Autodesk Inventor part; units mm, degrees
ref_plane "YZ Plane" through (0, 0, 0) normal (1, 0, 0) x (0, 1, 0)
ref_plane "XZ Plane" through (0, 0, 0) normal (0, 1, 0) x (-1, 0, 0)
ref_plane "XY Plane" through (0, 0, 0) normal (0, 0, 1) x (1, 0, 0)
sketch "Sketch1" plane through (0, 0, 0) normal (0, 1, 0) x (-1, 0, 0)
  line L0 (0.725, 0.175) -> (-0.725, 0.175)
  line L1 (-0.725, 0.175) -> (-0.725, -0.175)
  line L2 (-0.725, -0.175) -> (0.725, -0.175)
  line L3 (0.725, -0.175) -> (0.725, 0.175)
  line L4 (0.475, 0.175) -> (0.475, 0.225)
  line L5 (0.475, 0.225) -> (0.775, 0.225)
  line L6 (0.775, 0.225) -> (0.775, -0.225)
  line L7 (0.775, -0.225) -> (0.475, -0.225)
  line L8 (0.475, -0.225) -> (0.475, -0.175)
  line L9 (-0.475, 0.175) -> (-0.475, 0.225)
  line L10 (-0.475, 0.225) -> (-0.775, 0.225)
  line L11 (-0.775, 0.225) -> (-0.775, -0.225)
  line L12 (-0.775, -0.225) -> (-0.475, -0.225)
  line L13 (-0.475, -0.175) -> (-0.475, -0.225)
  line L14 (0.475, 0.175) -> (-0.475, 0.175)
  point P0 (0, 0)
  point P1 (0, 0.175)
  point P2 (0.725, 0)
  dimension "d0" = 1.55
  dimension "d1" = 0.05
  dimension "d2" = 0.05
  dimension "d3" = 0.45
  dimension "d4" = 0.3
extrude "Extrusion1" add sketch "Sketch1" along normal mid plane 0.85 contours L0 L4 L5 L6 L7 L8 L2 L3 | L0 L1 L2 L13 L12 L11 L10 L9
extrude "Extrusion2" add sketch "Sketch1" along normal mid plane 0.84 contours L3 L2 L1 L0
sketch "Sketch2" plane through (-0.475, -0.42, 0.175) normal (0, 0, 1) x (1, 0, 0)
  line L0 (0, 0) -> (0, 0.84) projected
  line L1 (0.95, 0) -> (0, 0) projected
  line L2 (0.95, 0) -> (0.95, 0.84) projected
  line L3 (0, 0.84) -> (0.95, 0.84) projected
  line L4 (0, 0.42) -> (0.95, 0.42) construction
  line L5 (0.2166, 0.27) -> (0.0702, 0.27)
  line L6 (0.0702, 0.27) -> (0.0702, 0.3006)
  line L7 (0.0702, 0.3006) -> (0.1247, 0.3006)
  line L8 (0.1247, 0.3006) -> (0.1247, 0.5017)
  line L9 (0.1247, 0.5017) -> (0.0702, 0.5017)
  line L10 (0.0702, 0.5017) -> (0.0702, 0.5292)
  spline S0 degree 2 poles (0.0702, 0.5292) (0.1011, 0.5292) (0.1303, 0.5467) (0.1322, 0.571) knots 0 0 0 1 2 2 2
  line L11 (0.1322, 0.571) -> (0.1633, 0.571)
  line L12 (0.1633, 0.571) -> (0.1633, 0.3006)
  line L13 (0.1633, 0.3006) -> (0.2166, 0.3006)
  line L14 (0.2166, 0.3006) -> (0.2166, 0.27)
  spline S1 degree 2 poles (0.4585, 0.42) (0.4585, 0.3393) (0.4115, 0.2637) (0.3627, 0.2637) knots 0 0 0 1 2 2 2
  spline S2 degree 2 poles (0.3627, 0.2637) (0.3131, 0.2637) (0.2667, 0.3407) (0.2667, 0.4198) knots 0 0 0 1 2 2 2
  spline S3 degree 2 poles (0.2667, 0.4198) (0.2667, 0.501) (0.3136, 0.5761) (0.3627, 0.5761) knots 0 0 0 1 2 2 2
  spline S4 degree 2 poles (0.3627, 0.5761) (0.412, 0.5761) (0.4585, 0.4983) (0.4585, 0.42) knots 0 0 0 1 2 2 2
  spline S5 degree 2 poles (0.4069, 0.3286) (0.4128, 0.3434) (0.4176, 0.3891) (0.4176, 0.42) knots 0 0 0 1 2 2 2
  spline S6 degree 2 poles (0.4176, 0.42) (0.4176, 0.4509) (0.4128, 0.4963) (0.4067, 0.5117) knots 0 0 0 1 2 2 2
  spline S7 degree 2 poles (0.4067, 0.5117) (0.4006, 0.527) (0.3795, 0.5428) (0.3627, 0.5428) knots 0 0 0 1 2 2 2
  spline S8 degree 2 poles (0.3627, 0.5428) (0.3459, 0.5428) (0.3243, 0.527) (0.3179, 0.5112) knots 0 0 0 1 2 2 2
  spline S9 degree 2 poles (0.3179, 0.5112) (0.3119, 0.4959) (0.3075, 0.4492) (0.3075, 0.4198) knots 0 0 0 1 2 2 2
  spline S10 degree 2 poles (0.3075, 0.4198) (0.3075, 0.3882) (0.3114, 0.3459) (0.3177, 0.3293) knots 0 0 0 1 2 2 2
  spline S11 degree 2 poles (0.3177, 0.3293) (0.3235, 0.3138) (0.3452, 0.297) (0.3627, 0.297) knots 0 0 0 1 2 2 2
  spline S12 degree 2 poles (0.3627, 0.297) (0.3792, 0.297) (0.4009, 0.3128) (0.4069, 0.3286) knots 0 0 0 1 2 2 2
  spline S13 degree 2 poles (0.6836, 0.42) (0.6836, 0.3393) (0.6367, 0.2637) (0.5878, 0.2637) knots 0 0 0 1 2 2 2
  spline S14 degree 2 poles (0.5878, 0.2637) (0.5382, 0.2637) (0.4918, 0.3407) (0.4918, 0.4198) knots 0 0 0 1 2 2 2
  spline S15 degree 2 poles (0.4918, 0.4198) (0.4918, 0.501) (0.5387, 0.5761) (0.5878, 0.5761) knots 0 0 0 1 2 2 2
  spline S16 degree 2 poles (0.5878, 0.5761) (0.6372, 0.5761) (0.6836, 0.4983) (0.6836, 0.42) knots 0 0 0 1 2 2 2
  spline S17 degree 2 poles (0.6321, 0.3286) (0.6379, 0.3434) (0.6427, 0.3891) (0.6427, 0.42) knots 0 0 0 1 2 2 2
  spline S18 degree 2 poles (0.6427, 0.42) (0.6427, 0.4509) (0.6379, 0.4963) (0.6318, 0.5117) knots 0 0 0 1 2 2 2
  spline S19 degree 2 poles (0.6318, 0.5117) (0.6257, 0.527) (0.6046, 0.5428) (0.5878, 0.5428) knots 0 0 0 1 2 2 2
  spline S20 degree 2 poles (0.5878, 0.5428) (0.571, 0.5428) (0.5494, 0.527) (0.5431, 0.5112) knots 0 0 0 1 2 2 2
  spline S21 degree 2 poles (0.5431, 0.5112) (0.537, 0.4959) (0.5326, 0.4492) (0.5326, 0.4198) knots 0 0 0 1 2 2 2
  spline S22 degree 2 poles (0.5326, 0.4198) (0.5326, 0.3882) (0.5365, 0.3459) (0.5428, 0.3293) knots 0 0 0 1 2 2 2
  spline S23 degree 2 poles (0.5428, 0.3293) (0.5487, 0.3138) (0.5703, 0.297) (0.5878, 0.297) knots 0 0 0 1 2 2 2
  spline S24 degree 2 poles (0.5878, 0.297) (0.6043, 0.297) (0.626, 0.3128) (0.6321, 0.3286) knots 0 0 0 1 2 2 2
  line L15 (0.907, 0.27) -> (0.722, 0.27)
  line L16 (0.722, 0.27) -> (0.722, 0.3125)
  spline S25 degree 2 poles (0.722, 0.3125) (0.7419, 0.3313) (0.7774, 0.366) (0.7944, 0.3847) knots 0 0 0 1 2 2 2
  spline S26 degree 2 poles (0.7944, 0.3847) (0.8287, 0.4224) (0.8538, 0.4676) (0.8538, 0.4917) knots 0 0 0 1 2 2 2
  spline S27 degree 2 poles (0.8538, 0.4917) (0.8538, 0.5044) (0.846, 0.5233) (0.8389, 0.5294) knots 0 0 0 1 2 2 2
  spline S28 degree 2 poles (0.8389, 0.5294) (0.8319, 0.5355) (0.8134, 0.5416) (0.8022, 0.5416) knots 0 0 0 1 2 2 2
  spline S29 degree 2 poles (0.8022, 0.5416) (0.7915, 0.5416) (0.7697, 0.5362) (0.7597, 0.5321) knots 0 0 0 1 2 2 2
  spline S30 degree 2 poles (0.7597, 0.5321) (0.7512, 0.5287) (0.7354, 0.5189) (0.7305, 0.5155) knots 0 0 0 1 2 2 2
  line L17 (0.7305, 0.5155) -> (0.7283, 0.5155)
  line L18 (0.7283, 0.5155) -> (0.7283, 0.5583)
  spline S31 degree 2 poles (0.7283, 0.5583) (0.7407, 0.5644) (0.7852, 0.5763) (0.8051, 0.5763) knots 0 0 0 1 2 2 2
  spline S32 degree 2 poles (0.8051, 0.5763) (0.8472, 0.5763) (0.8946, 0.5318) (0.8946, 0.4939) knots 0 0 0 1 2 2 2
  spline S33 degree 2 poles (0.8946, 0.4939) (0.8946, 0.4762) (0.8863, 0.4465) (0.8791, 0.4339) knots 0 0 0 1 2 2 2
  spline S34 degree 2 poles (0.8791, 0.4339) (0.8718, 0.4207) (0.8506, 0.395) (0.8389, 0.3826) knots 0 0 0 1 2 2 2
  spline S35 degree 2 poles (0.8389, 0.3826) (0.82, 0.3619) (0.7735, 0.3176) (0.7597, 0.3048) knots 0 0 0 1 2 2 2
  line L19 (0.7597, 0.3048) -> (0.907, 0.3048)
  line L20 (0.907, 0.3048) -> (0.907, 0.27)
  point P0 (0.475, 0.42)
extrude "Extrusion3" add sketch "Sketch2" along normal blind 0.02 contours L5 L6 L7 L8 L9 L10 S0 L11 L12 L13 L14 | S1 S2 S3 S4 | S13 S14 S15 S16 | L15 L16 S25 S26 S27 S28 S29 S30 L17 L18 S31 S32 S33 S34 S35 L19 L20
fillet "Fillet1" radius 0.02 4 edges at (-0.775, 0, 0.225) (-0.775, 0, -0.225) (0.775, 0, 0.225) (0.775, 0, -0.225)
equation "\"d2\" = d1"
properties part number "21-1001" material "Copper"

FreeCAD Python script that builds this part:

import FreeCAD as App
import Part
import Sketcher
from FreeCAD import Vector
Q = App.Units.Quantity


def edges_at(feature, points):
    """Names of the edges that pass closest to the given points."""
    edges = feature.Shape.Edges
    near = lambda p: min(range(len(edges)), key=lambda i: edges[i].distToShape(Part.Vertex(*p))[0])
    return sorted({f"Edge{near(p) + 1}" for p in points})


def add_polygon(sketch, points):
    """Adds a closed chain of lines whose ends are joined by coincident constraints."""
    first, n = sketch.GeometryCount, len(points)
    for a, b in zip(points, points[1:] + points[:1]):
        sketch.addGeometry(Part.LineSegment(App.Vector(*a, 0), App.Vector(*b, 0)), False)
    for i in range(n):
        sketch.addConstraint(Sketcher.Constraint("Coincident", first + i, 2, first + (i + 1) % n, 1))

doc = App.newDocument("Part")
body = doc.addObject("PartDesign::Body", "Body")
body.AllowCompound = True

# Sketch on XZ plane
sketch1 = doc.addObject("Sketcher::SketchObject", "Sketch")
body.addObject(sketch1)
sketch1.AttachmentSupport = (doc.XZ_Plane, [""])
sketch1.MapMode = "FlatFace"
add_polygon(sketch1, [(-0.47, 0.17), (-0.72, 0.17), (-0.72, -0.17), (-0.47, -0.17), (-0.47, -0.23), (-0.78, -0.23), (-0.78, 0.23), (-0.47, 0.23)])  # lines 0-7
add_polygon(sketch1, [(0.72, 0.17), (0.47, 0.17), (0.47, 0.23), (0.78, 0.23), (0.78, -0.23), (0.47, -0.23), (0.47, -0.17), (0.72, -0.17)])  # lines 8-15
sketch1.addConstraint(Sketcher.Constraint("Horizontal", 0))
sketch1.addConstraint(Sketcher.Constraint("Vertical", 1))
sketch1.addConstraint(Sketcher.Constraint("Horizontal", 2))
sketch1.addConstraint(Sketcher.Constraint("Vertical", 3))
sketch1.addConstraint(Sketcher.Constraint("Horizontal", 4))
sketch1.addConstraint(Sketcher.Constraint("Vertical", 5))
sketch1.addConstraint(Sketcher.Constraint("Horizontal", 6))
sketch1.addConstraint(Sketcher.Constraint("Vertical", 7))
sketch1.addConstraint(Sketcher.Constraint("Horizontal", 8))
sketch1.addConstraint(Sketcher.Constraint("Vertical", 9))
sketch1.addConstraint(Sketcher.Constraint("Horizontal", 10))
sketch1.addConstraint(Sketcher.Constraint("Vertical", 11))
sketch1.addConstraint(Sketcher.Constraint("Horizontal", 12))
sketch1.addConstraint(Sketcher.Constraint("Vertical", 13))
sketch1.addConstraint(Sketcher.Constraint("Horizontal", 14))
sketch1.addConstraint(Sketcher.Constraint("Vertical", 15))
sketch1.addConstraint(Sketcher.Constraint("Symmetric", 2, 2, 8, 2, -1, 1))
sketch1.addConstraint(Sketcher.Constraint("Symmetric", 4, 2, 10, 2, -1, 1))
sketch1.addConstraint(Sketcher.Constraint("Symmetric", 6, 2, 12, 2, -1, 1))
sketch1.addConstraint(Sketcher.Constraint("Symmetric", 0, 2, 14, 2, -1, 1))
sketch1.addConstraint(Sketcher.Constraint("Symmetric", 7, 2, 8, 2, -2))
sketch1.addConstraint(Sketcher.Constraint("Horizontal", 6, 2, 9, 2))
sketch1.addConstraint(Sketcher.Constraint("DistanceX", 4, 2, 4, 1, Q("0.3 mm")))
sketch1.addConstraint(Sketcher.Constraint("DistanceY", 3, 2, 3, 1, Q("0.05 mm")))
sketch1.addConstraint(Sketcher.Constraint("DistanceY", 5, 1, 5, 2, Q("0.45 mm")))
sketch1.addConstraint(Sketcher.Constraint("DistanceX", 4, 2, 1, 2, Q("0.05 mm")))
sketch1.addConstraint(Sketcher.Constraint("DistanceX", 0, 2, 8, 2, Q("1.2 mm")))
pad1 = doc.addObject("PartDesign::Pad", "Pad")
body.addObject(pad1)
pad1.Profile = sketch1
pad1.Length = 0.85
pad1.Midplane = True

# Sketch on XZ plane
sketch2 = doc.addObject("Sketcher::SketchObject", "Sketch001")
body.addObject(sketch2)
sketch2.AttachmentSupport = (doc.XZ_Plane, [""])
sketch2.MapMode = "FlatFace"
add_polygon(sketch2, [(-0.72, -0.17), (-0.72, 0.17), (0.72, 0.17), (0.72, -0.17)])  # lines 0-3
sketch2.addConstraint(Sketcher.Constraint("Vertical", 0))
sketch2.addConstraint(Sketcher.Constraint("Horizontal", 1))
sketch2.addConstraint(Sketcher.Constraint("Vertical", 2))
sketch2.addConstraint(Sketcher.Constraint("Horizontal", 3))
sketch2.addConstraint(Sketcher.Constraint("Symmetric", 0, 2, 2, 2, -1, 1))
sketch2.addConstraint(Sketcher.Constraint("DistanceX", 1, 1, 1, 2, Q("1.45 mm")))
sketch2.addConstraint(Sketcher.Constraint("DistanceY", 0, 1, 0, 2, Q("0.35 mm")))
pad2 = doc.addObject("PartDesign::Pad", "Pad001")
body.addObject(pad2)
pad2.Profile = sketch2
pad2.Length = 0.84
pad2.Midplane = True

# Sketch on XY plane
sketch3 = doc.addObject("Sketcher::SketchObject", "Sketch002")
body.addObject(sketch3)
sketch3.AttachmentSupport = (doc.XY_Plane, [""])
sketch3.MapMode = "FlatFace"
sketch3.AttachmentOffset = App.Placement(Vector(0, 0, 0.175), App.Rotation())
sketch3.addGeometry(Part.LineSegment(Vector(-0.4048, -0.15, 0), Vector(-0.2584, -0.15, 0)), False)
sketch3.addGeometry(Part.LineSegment(Vector(-0.2584, -0.15, 0), Vector(-0.2584, -0.1194, 0)), False)
sketch3.addGeometry(Part.LineSegment(Vector(-0.2584, -0.1194, 0), Vector(-0.3117, -0.1194, 0)), False)
sketch3.addGeometry(Part.LineSegment(Vector(-0.3117, -0.1194, 0), Vector(-0.3117, 0.151, 0)), False)
sketch3.addGeometry(Part.LineSegment(Vector(-0.3117, 0.151, 0), Vector(-0.3428, 0.151, 0)), False)
sketch3.addGeometry(Part.BSplineCurve([Vector(-0.4048, 0.1092, 0), Vector(-0.3739, 0.1092, 0), Vector(-0.3447, 0.1267, 0), Vector(-0.3428, 0.151, 0)], [3, 1, 3], [0, 1, 2], False, 2, [1, 1, 1, 1], False), False)
sketch3.addGeometry(Part.LineSegment(Vector(-0.4048, 0.1092, 0), Vector(-0.4048, 0.0817, 0)), False)
sketch3.addGeometry(Part.LineSegment(Vector(-0.4048, 0.0817, 0), Vector(-0.3503, 0.0817, 0)), False)
sketch3.addGeometry(Part.LineSegment(Vector(-0.3503, 0.0817, 0), Vector(-0.3503, -0.1194, 0)), False)
sketch3.addGeometry(Part.LineSegment(Vector(-0.3503, -0.1194, 0), Vector(-0.4048, -0.1194, 0)), False)
sketch3.addGeometry(Part.LineSegment(Vector(-0.4048, -0.1194, 0), Vector(-0.4048, -0.15, 0)), False)
sketch3.addGeometry(Part.BSplineCurve([Vector(-0.0165, 0, 0), Vector(-0.0165, -0.0807, 0), Vector(-0.0635, -0.1563, 0), Vector(-0.1123, -0.1563, 0)], [3, 1, 3], [0, 1, 2], False, 2, [1, 1, 1, 1], False), False)
sketch3.addGeometry(Part.BSplineCurve([Vector(-0.1123, 0.1561, 0), Vector(-0.063, 0.1561, 0), Vector(-0.0165, 0.0783, 0), Vector(-0.0165, 0, 0)], [3, 1, 3], [0, 1, 2], False, 2, [1, 1, 1, 1], False), False)
sketch3.addGeometry(Part.BSplineCurve([Vector(-0.2083, -0.0002, 0), Vector(-0.2083, 0.081, 0), Vector(-0.1614, 0.1561, 0), Vector(-0.1123, 0.1561, 0)], [3, 1, 3], [0, 1, 2], False, 2, [1, 1, 1, 1], False), False)
sketch3.addGeometry(Part.BSplineCurve([Vector(-0.1123, -0.1563, 0), Vector(-0.1619, -0.1563, 0), Vector(-0.2083, -0.0793, 0), Vector(-0.2083, -0.0002, 0)], [3, 1, 3], [0, 1, 2], False, 2, [1, 1, 1, 1], False), False)
sketch3.addGeometry(Part.BSplineCurve([Vector(-0.0681, -0.0914, 0), Vector(-0.0622, -0.0766, 0), Vector(-0.0574, -0.0309, 0), Vector(-0.0574, 0, 0)], [3, 1, 3], [0, 1, 2], False, 2, [1, 1, 1, 1], False), False)
sketch3.addGeometry(Part.BSplineCurve([Vector(-0.1123, -0.123, 0), Vector(-0.0958, -0.123, 0), Vector(-0.0741, -0.1072, 0), Vector(-0.0681, -0.0914, 0)], [3, 1, 3], [0, 1, 2], False, 2, [1, 1, 1, 1], False), False)
sketch3.addGeometry(Part.BSplineCurve([Vector(-0.1573, -0.0907, 0), Vector(-0.1515, -0.1062, 0), Vector(-0.1298, -0.123, 0), Vector(-0.1123, -0.123, 0)], [3, 1, 3], [0, 1, 2], False, 2, [1, 1, 1, 1], False), False)
sketch3.addGeometry(Part.BSplineCurve([Vector(-0.1675, -0.0002, 0), Vector(-0.1675, -0.0318, 0), Vector(-0.1636, -0.0741, 0), Vector(-0.1573, -0.0907, 0)], [3, 1, 3], [0, 1, 2], False, 2, [1, 1, 1, 1], False), False)
sketch3.addGeometry(Part.BSplineCurve([Vector(-0.1571, 0.0912, 0), Vector(-0.1631, 0.0759, 0), Vector(-0.1675, 0.0292, 0), Vector(-0.1675, -0.0002, 0)], [3, 1, 3], [0, 1, 2], False, 2, [1, 1, 1, 1], False), False)
sketch3.addGeometry(Part.BSplineCurve([Vector(-0.1123, 0.1228, 0), Vector(-0.1291, 0.1228, 0), Vector(-0.1507, 0.107, 0), Vector(-0.1571, 0.0912, 0)], [3, 1, 3], [0, 1, 2], False, 2, [1, 1, 1, 1], False), False)
sketch3.addGeometry(Part.BSplineCurve([Vector(-0.0683, 0.0917, 0), Vector(-0.0744, 0.107, 0), Vector(-0.0955, 0.1228, 0), Vector(-0.1123, 0.1228, 0)], [3, 1, 3], [0, 1, 2], False, 2, [1, 1, 1, 1], False), False)
sketch3.addGeometry(Part.BSplineCurve([Vector(-0.0574, 0, 0), Vector(-0.0574, 0.0309, 0), Vector(-0.0622, 0.0763, 0), Vector(-0.0683, 0.0917, 0)], [3, 1, 3], [0, 1, 2], False, 2, [1, 1, 1, 1], False), False)
sketch3.addGeometry(Part.BSplineCurve([Vector(0.2086, 0, 0), Vector(0.2086, -0.0807, 0), Vector(0.1617, -0.1563, 0), Vector(0.1128, -0.1563, 0)], [3, 1, 3], [0, 1, 2], False, 2, [1, 1, 1, 1], False), False)
sketch3.addGeometry(Part.BSplineCurve([Vector(0.1128, 0.1561, 0), Vector(0.1622, 0.1561, 0), Vector(0.2086, 0.0783, 0), Vector(0.2086, 0, 0)], [3, 1, 3], [0, 1, 2], False, 2, [1, 1, 1, 1], False), False)
sketch3.addGeometry(Part.BSplineCurve([Vector(0.0168, -0.0002, 0), Vector(0.0168, 0.081, 0), Vector(0.0637, 0.1561, 0), Vector(0.1128, 0.1561, 0)], [3, 1, 3], [0, 1, 2], False, 2, [1, 1, 1, 1], False), False)
sketch3.addGeometry(Part.BSplineCurve([Vector(0.1128, -0.1563, 0), Vector(0.0632, -0.1563, 0), Vector(0.0168, -0.0793, 0), Vector(0.0168, -0.0002, 0)], [3, 1, 3], [0, 1, 2], False, 2, [1, 1, 1, 1], False), False)
sketch3.addGeometry(Part.BSplineCurve([Vector(0.1571, -0.0914, 0), Vector(0.1629, -0.0766, 0), Vector(0.1677, -0.0309, 0), Vector(0.1677, 0, 0)], [3, 1, 3], [0, 1, 2], False, 2, [1, 1, 1, 1], False), False)
sketch3.addGeometry(Part.BSplineCurve([Vector(0.1128, -0.123, 0), Vector(0.1293, -0.123, 0), Vector(0.151, -0.1072, 0), Vector(0.1571, -0.0914, 0)], [3, 1, 3], [0, 1, 2], False, 2, [1, 1, 1, 1], False), False)
sketch3.addGeometry(Part.BSplineCurve([Vector(0.0678, -0.0907, 0), Vector(0.0737, -0.1062, 0), Vector(0.0953, -0.123, 0), Vector(0.1128, -0.123, 0)], [3, 1, 3], [0, 1, 2], False, 2, [1, 1, 1, 1], False), False)
sketch3.addGeometry(Part.BSplineCurve([Vector(0.0576, -0.0002, 0), Vector(0.0576, -0.0318, 0), Vector(0.0615, -0.0741, 0), Vector(0.0678, -0.0907, 0)], [3, 1, 3], [0, 1, 2], False, 2, [1, 1, 1, 1], False), False)
sketch3.addGeometry(Part.BSplineCurve([Vector(0.0681, 0.0912, 0), Vector(0.062, 0.0759, 0), Vector(0.0576, 0.0292, 0), Vector(0.0576, -0.0002, 0)], [3, 1, 3], [0, 1, 2], False, 2, [1, 1, 1, 1], False), False)
sketch3.addGeometry(Part.BSplineCurve([Vector(0.1128, 0.1228, 0), Vector(0.096, 0.1228, 0), Vector(0.0744, 0.107, 0), Vector(0.0681, 0.0912, 0)], [3, 1, 3], [0, 1, 2], False, 2, [1, 1, 1, 1], False), False)
sketch3.addGeometry(Part.BSplineCurve([Vector(0.1568, 0.0917, 0), Vector(0.1507, 0.107, 0), Vector(0.1296, 0.1228, 0), Vector(0.1128, 0.1228, 0)], [3, 1, 3], [0, 1, 2], False, 2, [1, 1, 1, 1], False), False)
sketch3.addGeometry(Part.BSplineCurve([Vector(0.1677, 0, 0), Vector(0.1677, 0.0309, 0), Vector(0.1629, 0.0763, 0), Vector(0.1568, 0.0917, 0)], [3, 1, 3], [0, 1, 2], False, 2, [1, 1, 1, 1], False), False)
sketch3.addGeometry(Part.LineSegment(Vector(0.247, -0.15, 0), Vector(0.432, -0.15, 0)), False)
sketch3.addGeometry(Part.LineSegment(Vector(0.432, -0.15, 0), Vector(0.432, -0.1152, 0)), False)
sketch3.addGeometry(Part.LineSegment(Vector(0.432, -0.1152, 0), Vector(0.2847, -0.1152, 0)), False)
sketch3.addGeometry(Part.BSplineCurve([Vector(0.3639, -0.0374, 0), Vector(0.345, -0.0581, 0), Vector(0.2985, -0.1024, 0), Vector(0.2847, -0.1152, 0)], [3, 1, 3], [0, 1, 2], False, 2, [1, 1, 1, 1], False), False)
sketch3.addGeometry(Part.BSplineCurve([Vector(0.4041, 0.0139, 0), Vector(0.3968, 0.0007, 0), Vector(0.3756, -0.025, 0), Vector(0.3639, -0.0374, 0)], [3, 1, 3], [0, 1, 2], False, 2, [1, 1, 1, 1], False), False)
sketch3.addGeometry(Part.BSplineCurve([Vector(0.4196, 0.0739, 0), Vector(0.4196, 0.0562, 0), Vector(0.4113, 0.0265, 0), Vector(0.4041, 0.0139, 0)], [3, 1, 3], [0, 1, 2], False, 2, [1, 1, 1, 1], False), False)
sketch3.addGeometry(Part.BSplineCurve([Vector(0.3301, 0.1563, 0), Vector(0.3722, 0.1563, 0), Vector(0.4196, 0.1118, 0), Vector(0.4196, 0.0739, 0)], [3, 1, 3], [0, 1, 2], False, 2, [1, 1, 1, 1], False), False)
sketch3.addGeometry(Part.BSplineCurve([Vector(0.2533, 0.1383, 0), Vector(0.2657, 0.1444, 0), Vector(0.3102, 0.1563, 0), Vector(0.3301, 0.1563, 0)], [3, 1, 3], [0, 1, 2], False, 2, [1, 1, 1, 1], False), False)
sketch3.addGeometry(Part.LineSegment(Vector(0.2533, 0.1383, 0), Vector(0.2533, 0.0955, 0)), False)
sketch3.addGeometry(Part.LineSegment(Vector(0.2533, 0.0955, 0), Vector(0.2555, 0.0955, 0)), False)
sketch3.addGeometry(Part.BSplineCurve([Vector(0.2847, 0.1121, 0), Vector(0.2762, 0.1087, 0), Vector(0.2604, 0.0989, 0), Vector(0.2555, 0.0955, 0)], [3, 1, 3], [0, 1, 2], False, 2, [1, 1, 1, 1], False), False)
sketch3.addGeometry(Part.BSplineCurve([Vector(0.3272, 0.1216, 0), Vector(0.3165, 0.1216, 0), Vector(0.2947, 0.1162, 0), Vector(0.2847, 0.1121, 0)], [3, 1, 3], [0, 1, 2], False, 2, [1, 1, 1, 1], False), False)
sketch3.addGeometry(Part.BSplineCurve([Vector(0.3639, 0.1094, 0), Vector(0.3569, 0.1155, 0), Vector(0.3384, 0.1216, 0), Vector(0.3272, 0.1216, 0)], [3, 1, 3], [0, 1, 2], False, 2, [1, 1, 1, 1], False), False)
sketch3.addGeometry(Part.BSplineCurve([Vector(0.3788, 0.0717, 0), Vector(0.3788, 0.0844, 0), Vector(0.371, 0.1033, 0), Vector(0.3639, 0.1094, 0)], [3, 1, 3], [0, 1, 2], False, 2, [1, 1, 1, 1], False), False)
sketch3.addGeometry(Part.BSplineCurve([Vector(0.3194, -0.0353, 0), Vector(0.3537, 0.0024, 0), Vector(0.3788, 0.0476, 0), Vector(0.3788, 0.0717, 0)], [3, 1, 3], [0, 1, 2], False, 2, [1, 1, 1, 1], False), False)
sketch3.addGeometry(Part.BSplineCurve([Vector(0.247, -0.1075, 0), Vector(0.2669, -0.0887, 0), Vector(0.3024, -0.054, 0), Vector(0.3194, -0.0353, 0)], [3, 1, 3], [0, 1, 2], False, 2, [1, 1, 1, 1], False), False)
sketch3.addGeometry(Part.LineSegment(Vector(0.247, -0.1075, 0), Vector(0.247, -0.15, 0)), False)
sketch3.addConstraint(Sketcher.Constraint("Block", 5))
sketch3.addConstraint(Sketcher.Constraint("Block", 11))
sketch3.addConstraint(Sketcher.Constraint("Block", 12))
sketch3.addConstraint(Sketcher.Constraint("Block", 13))
sketch3.addConstraint(Sketcher.Constraint("Block", 14))
sketch3.addConstraint(Sketcher.Constraint("Block", 15))
sketch3.addConstraint(Sketcher.Constraint("Block", 16))
sketch3.addConstraint(Sketcher.Constraint("Block", 17))
sketch3.addConstraint(Sketcher.Constraint("Block", 18))
sketch3.addConstraint(Sketcher.Constraint("Block", 19))
sketch3.addConstraint(Sketcher.Constraint("Block", 20))
sketch3.addConstraint(Sketcher.Constraint("Block", 21))
sketch3.addConstraint(Sketcher.Constraint("Block", 22))
sketch3.addConstraint(Sketcher.Constraint("Block", 23))
sketch3.addConstraint(Sketcher.Constraint("Block", 24))
sketch3.addConstraint(Sketcher.Constraint("Block", 25))
sketch3.addConstraint(Sketcher.Constraint("Block", 26))
sketch3.addConstraint(Sketcher.Constraint("Block", 27))
sketch3.addConstraint(Sketcher.Constraint("Block", 28))
sketch3.addConstraint(Sketcher.Constraint("Block", 29))
sketch3.addConstraint(Sketcher.Constraint("Block", 30))
sketch3.addConstraint(Sketcher.Constraint("Block", 31))
sketch3.addConstraint(Sketcher.Constraint("Block", 32))
sketch3.addConstraint(Sketcher.Constraint("Block", 33))
sketch3.addConstraint(Sketcher.Constraint("Block", 34))
sketch3.addConstraint(Sketcher.Constraint("Block", 38))
sketch3.addConstraint(Sketcher.Constraint("Block", 39))
sketch3.addConstraint(Sketcher.Constraint("Block", 40))
sketch3.addConstraint(Sketcher.Constraint("Block", 41))
sketch3.addConstraint(Sketcher.Constraint("Block", 42))
sketch3.addConstraint(Sketcher.Constraint("Block", 45))
sketch3.addConstraint(Sketcher.Constraint("Block", 46))
sketch3.addConstraint(Sketcher.Constraint("Block", 47))
sketch3.addConstraint(Sketcher.Constraint("Block", 48))
sketch3.addConstraint(Sketcher.Constraint("Block", 49))
sketch3.addConstraint(Sketcher.Constraint("Block", 50))
sketch3.addConstraint(Sketcher.Constraint("Coincident", 0, 2, 1, 1))
sketch3.addConstraint(Sketcher.Constraint("Coincident", 1, 2, 2, 1))
sketch3.addConstraint(Sketcher.Constraint("Coincident", 2, 2, 3, 1))
sketch3.addConstraint(Sketcher.Constraint("Coincident", 3, 2, 4, 1))
sketch3.addConstraint(Sketcher.Constraint("Coincident", 4, 2, 5, 2))
sketch3.addConstraint(Sketcher.Constraint("Coincident", 5, 1, 6, 1))
sketch3.addConstraint(Sketcher.Constraint("Coincident", 6, 2, 7, 1))
sketch3.addConstraint(Sketcher.Constraint("Coincident", 7, 2, 8, 1))
sketch3.addConstraint(Sketcher.Constraint("Coincident", 8, 2, 9, 1))
sketch3.addConstraint(Sketcher.Constraint("Coincident", 9, 2, 10, 1))
sketch3.addConstraint(Sketcher.Constraint("Coincident", 10, 2, 0, 1))
sketch3.addConstraint(Sketcher.Constraint("Coincident", 35, 2, 36, 1))
sketch3.addConstraint(Sketcher.Constraint("Coincident", 36, 2, 37, 1))
sketch3.addConstraint(Sketcher.Constraint("Coincident", 37, 2, 38, 2))
sketch3.addConstraint(Sketcher.Constraint("Coincident", 42, 1, 43, 1))
sketch3.addConstraint(Sketcher.Constraint("Coincident", 43, 2, 44, 1))
sketch3.addConstraint(Sketcher.Constraint("Coincident", 44, 2, 45, 2))
sketch3.addConstraint(Sketcher.Constraint("Coincident", 50, 1, 51, 1))
sketch3.addConstraint(Sketcher.Constraint("Coincident", 51, 2, 35, 1))
sketch3.addConstraint(Sketcher.Constraint("Horizontal", 0))
sketch3.addConstraint(Sketcher.Constraint("Vertical", 1))
sketch3.addConstraint(Sketcher.Constraint("Horizontal", 2))
sketch3.addConstraint(Sketcher.Constraint("Vertical", 3))
sketch3.addConstraint(Sketcher.Constraint("Horizontal", 4))
sketch3.addConstraint(Sketcher.Constraint("Vertical", 6))
sketch3.addConstraint(Sketcher.Constraint("Horizontal", 7))
sketch3.addConstraint(Sketcher.Constraint("Vertical", 8))
sketch3.addConstraint(Sketcher.Constraint("Horizontal", 9))
sketch3.addConstraint(Sketcher.Constraint("Vertical", 10))
sketch3.addConstraint(Sketcher.Constraint("Horizontal", 35))
sketch3.addConstraint(Sketcher.Constraint("Vertical", 36))
sketch3.addConstraint(Sketcher.Constraint("Horizontal", 37))
sketch3.addConstraint(Sketcher.Constraint("Vertical", 43))
sketch3.addConstraint(Sketcher.Constraint("Horizontal", 44))
sketch3.addConstraint(Sketcher.Constraint("Vertical", 51))
sketch3.addConstraint(Sketcher.Constraint("Horizontal", 2, 2, 8, 2))
sketch3.addConstraint(Sketcher.Constraint("Horizontal", 10, 2, 35, 2))
sketch3.addConstraint(Sketcher.Constraint("Vertical", 6, 2, 9, 2))
sketch3.addConstraint(Sketcher.Constraint("DistanceX", 4, 2, 4, 1, Q("0.031 mm")))
sketch3.addConstraint(Sketcher.Constraint("DistanceX", 35, 1, 35, 2, Q("0.185 mm")))
sketch3.addConstraint(Sketcher.Constraint("DistanceY", 8, 2, 8, 1, Q("0.201 mm")))
sketch3.addConstraint(Sketcher.Constraint("DistanceY", 0, 2, -1, 1, Q("0.15 mm")))
sketch3.addConstraint(Sketcher.Constraint("DistanceX", 0, 1, 0, 2, Q("0.1464 mm")))
sketch3.addConstraint(Sketcher.Constraint("DistanceX", 7, 1, 7, 2, Q("0.0545 mm")))
sketch3.addConstraint(Sketcher.Constraint("DistanceY", 1, 1, 1, 2, Q("0.0306 mm")))
pad3 = doc.addObject("PartDesign::Pad", "Pad002")
body.addObject(pad3)
pad3.Profile = sketch3
pad3.Length = 0.02
doc.recompute()

fillet = doc.addObject("PartDesign::Fillet", "Fillet")
body.addObject(fillet)
fillet.Base = (pad3, edges_at(pad3, [
    (-0.775, 0, 0.225),
    (-0.775, 0, -0.225),
    (0.775, 0, 0.225),
    (0.775, 0, -0.225),
]))
fillet.Radius = 0.02

doc.recompute()
